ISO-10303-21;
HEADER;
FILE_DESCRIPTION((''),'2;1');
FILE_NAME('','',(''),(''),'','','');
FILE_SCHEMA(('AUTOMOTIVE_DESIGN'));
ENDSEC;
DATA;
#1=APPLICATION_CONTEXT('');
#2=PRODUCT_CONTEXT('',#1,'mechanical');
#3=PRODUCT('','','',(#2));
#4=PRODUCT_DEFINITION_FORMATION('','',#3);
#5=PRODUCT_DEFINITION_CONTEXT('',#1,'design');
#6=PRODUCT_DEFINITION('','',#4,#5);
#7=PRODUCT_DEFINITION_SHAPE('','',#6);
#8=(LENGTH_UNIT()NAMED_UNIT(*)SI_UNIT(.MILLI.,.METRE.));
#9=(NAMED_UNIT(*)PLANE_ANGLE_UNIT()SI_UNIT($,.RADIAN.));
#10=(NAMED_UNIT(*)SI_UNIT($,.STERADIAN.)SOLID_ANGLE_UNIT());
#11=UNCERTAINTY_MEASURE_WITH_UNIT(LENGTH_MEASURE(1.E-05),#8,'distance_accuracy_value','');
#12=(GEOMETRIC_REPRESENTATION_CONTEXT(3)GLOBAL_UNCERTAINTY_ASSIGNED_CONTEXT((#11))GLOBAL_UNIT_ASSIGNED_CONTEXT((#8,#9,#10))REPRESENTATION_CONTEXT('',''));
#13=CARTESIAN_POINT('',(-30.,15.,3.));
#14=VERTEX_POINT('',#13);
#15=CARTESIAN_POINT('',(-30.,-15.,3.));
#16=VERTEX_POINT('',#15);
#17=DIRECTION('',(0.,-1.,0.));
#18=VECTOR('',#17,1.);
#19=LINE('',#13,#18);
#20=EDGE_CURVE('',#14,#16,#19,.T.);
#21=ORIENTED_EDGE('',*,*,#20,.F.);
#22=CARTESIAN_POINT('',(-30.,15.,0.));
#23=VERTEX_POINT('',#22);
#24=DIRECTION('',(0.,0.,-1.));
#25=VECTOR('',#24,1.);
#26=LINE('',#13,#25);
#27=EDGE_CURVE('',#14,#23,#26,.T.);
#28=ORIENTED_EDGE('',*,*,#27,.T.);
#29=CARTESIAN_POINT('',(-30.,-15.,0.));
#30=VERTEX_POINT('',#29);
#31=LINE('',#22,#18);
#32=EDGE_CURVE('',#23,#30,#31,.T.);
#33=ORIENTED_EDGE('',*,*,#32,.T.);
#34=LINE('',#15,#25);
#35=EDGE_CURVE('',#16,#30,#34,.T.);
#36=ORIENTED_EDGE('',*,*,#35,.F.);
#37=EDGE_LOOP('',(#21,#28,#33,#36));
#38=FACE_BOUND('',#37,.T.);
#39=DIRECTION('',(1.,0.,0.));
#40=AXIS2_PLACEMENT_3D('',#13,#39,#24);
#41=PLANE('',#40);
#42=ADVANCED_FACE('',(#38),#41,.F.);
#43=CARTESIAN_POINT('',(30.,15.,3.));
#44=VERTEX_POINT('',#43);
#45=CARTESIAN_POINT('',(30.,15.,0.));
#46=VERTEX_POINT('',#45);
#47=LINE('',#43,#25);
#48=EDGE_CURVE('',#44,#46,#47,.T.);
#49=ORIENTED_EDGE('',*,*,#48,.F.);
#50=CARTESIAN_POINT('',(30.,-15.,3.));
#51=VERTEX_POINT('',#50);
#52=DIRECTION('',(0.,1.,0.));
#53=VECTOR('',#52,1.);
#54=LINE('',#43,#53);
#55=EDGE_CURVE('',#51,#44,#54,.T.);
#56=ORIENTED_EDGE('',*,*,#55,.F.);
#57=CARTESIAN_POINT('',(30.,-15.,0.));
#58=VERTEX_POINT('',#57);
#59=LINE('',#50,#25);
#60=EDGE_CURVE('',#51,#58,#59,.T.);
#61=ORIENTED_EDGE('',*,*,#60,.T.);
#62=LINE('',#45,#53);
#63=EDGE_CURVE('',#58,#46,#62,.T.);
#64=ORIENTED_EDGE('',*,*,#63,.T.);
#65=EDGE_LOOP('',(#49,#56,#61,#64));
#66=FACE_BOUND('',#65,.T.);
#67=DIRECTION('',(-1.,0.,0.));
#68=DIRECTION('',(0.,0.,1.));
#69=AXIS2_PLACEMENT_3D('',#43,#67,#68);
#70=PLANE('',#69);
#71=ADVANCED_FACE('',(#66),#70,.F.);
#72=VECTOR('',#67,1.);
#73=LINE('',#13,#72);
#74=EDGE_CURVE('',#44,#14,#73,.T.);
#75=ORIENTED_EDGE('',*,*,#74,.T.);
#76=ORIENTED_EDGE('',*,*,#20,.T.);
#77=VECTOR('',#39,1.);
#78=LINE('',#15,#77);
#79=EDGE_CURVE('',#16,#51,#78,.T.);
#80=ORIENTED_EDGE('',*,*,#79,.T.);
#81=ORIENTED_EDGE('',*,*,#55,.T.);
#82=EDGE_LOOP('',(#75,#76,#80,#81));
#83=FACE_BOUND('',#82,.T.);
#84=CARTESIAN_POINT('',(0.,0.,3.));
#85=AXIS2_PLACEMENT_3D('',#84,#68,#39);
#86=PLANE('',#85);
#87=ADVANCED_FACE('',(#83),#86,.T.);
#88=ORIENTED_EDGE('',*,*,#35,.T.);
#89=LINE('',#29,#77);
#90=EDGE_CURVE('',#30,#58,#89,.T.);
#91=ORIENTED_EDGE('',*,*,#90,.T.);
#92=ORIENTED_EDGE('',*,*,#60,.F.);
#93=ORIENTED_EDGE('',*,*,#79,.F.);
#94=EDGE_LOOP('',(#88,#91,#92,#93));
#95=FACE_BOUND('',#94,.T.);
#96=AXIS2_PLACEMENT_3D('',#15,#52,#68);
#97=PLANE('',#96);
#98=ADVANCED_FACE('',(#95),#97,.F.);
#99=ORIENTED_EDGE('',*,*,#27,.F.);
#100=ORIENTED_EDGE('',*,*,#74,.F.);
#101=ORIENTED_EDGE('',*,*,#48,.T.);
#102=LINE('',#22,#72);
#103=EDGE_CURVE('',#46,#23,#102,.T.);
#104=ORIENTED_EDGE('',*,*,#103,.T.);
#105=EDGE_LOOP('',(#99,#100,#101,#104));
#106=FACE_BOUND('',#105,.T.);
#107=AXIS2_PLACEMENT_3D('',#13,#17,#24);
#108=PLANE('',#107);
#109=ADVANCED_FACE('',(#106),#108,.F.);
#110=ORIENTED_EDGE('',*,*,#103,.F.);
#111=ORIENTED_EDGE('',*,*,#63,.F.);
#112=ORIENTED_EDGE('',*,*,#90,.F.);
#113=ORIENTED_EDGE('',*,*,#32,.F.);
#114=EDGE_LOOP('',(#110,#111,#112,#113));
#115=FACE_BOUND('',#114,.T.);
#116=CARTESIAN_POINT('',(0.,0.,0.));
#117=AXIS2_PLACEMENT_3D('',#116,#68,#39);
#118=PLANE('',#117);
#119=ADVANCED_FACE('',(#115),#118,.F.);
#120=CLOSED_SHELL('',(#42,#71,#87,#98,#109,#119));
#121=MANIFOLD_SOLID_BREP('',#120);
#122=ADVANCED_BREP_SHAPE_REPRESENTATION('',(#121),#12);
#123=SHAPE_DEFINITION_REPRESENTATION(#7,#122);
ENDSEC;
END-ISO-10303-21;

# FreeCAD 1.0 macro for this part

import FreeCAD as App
import Part
import Sketcher

V = App.Vector
Q = App.Units.Quantity


def add_polygon(sketch, points):
    """Adds a closed chain of lines whose ends are joined by coincident constraints."""
    first, n = sketch.GeometryCount, len(points)
    for a, b in zip(points, points[1:] + points[:1]):
        sketch.addGeometry(Part.LineSegment(App.Vector(*a, 0), App.Vector(*b, 0)), False)
    for i in range(n):
        sketch.addConstraint(Sketcher.Constraint("Coincident", first + i, 2, first + (i + 1) % n, 1))

doc = App.newDocument("Part")
body = doc.addObject("PartDesign::Body", "Body")

sketch1 = doc.addObject("Sketcher::SketchObject", "Sketch")
body.addObject(sketch1)
sketch1.AttachmentSupport = (doc.XY_Plane, [""])
sketch1.MapMode = "FlatFace"
add_polygon(sketch1, [(-30, 15), (-30, -15), (30, -15), (30, 15)])
sketch1.addConstraint(Sketcher.Constraint("Vertical", 0))
sketch1.addConstraint(Sketcher.Constraint("Horizontal", 1))
sketch1.addConstraint(Sketcher.Constraint("Vertical", 2))
sketch1.addConstraint(Sketcher.Constraint("Horizontal", 3))
sketch1.addConstraint(Sketcher.Constraint("Symmetric", 0, 2, 2, 2, -1, 1))
sketch1.addConstraint(Sketcher.Constraint("DistanceX", 1, 1, 1, 2, Q("60 mm")))
sketch1.addConstraint(Sketcher.Constraint("DistanceY", 0, 2, 0, 1, Q("30 mm")))
pad1 = doc.addObject("PartDesign::Pad", "Pad")
body.addObject(pad1)
pad1.Profile = sketch1
pad1.Length = 3

doc.recompute()
